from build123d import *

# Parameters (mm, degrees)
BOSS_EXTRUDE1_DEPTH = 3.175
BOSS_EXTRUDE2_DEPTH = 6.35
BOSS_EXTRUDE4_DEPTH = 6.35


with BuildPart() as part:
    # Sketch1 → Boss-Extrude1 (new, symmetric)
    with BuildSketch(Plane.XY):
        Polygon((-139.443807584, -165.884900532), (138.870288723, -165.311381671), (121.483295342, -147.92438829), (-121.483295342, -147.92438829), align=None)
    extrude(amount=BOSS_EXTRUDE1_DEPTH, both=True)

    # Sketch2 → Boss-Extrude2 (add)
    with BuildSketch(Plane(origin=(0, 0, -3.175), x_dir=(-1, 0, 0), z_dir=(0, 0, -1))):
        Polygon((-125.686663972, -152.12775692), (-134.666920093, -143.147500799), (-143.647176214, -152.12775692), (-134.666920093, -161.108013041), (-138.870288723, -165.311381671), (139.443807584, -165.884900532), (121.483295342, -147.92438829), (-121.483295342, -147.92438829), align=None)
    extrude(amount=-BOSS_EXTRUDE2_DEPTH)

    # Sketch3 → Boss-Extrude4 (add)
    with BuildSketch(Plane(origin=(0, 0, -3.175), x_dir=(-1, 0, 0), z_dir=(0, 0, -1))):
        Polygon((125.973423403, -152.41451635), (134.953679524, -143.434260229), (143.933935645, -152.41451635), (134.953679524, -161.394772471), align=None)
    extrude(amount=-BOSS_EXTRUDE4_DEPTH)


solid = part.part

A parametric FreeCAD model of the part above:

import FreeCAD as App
import Part
import Sketcher

V = App.Vector
Q = App.Units.Quantity


def add_polygon(sketch, points):
    """Adds a closed chain of lines whose ends are joined by coincident constraints."""
    first, n = sketch.GeometryCount, len(points)
    for a, b in zip(points, points[1:] + points[:1]):
        sketch.addGeometry(Part.LineSegment(App.Vector(*a, 0), App.Vector(*b, 0)), False)
    for i in range(n):
        sketch.addConstraint(Sketcher.Constraint("Coincident", first + i, 2, first + (i + 1) % n, 1))

doc = App.newDocument("Part")
body = doc.addObject("PartDesign::Body", "Body")

# Sketch on XY plane
sketch1 = body.newObject("Sketcher::SketchObject", "Sketch")
sketch1.AttachmentSupport = (doc.getObject("XY_Plane"), [""])
sketch1.MapMode = "FlatFace"
add_polygon(sketch1, [(-139, -166), (139, -165), (121, -148), (-121, -148)])  # lines 0-3
sketch1.addConstraint([
    Sketcher.Constraint("Horizontal", 2),
    Sketcher.Constraint("Perpendicular", 1, 3),
    Sketcher.Constraint("Distance", 3, Q("1 in")),
    Sketcher.Constraint("Angle", 1, Q("135 deg")),
    Sketcher.Constraint("DistanceX", 2, 2, 2, 1, Q("242.966591 mm")),
    Sketcher.Constraint("DistanceY", 3, 2, -1, 1, Q("165.884901 mm")),
    Sketcher.Constraint("Distance", 1, Q("24.588922 mm")),
    Sketcher.Constraint("DistanceX", -1, 1, 0, 2, Q("138.870289 mm")),
])
pad1 = body.newObject("PartDesign::Pad", "Pad")
pad1.Profile = sketch1
pad1.Length = Q("0.25 in")
pad1.Midplane = True

# Sketch on XY plane
sketch2 = body.newObject("Sketcher::SketchObject", "Sketch001")
sketch2.AttachmentSupport = (doc.getObject("XY_Plane"), [""])
sketch2.MapMode = "FlatFace"
sketch2.AttachmentOffset = App.Placement(V(0, 0, -0.125 * 25.4), App.Rotation())
add_polygon(sketch2, [(126, -152), (135, -143), (144, -152), (135, -161), (139, -165), (-139, -166), (-121, -148), (121, -148)])  # lines 0-7
sketch2.addConstraint([
    Sketcher.Constraint("Horizontal", 6),
    Sketcher.Constraint("Perpendicular", 0, 1),
    Sketcher.Constraint("Perpendicular", 1, 2),
    Sketcher.Constraint("Perpendicular", 2, 3),
    Sketcher.Constraint("Perpendicular", 3, 5),
    Sketcher.Constraint("Perpendicular", 5, 7),
    Sketcher.Constraint("Horizontal", 1, 2, 7, 2),
    Sketcher.Constraint("Vertical", 0, 2, 2, 2),
    Sketcher.Constraint("Equal", 0, 1),
    Sketcher.Constraint("Equal", 3, 7),
    Sketcher.Constraint("Distance", 5, Q("1 in")),
    Sketcher.Constraint("Distance", 0, Q("0.5 in")),
    Sketcher.Constraint("DistanceX", 6, 1, 6, 2, Q("242.966591 mm")),
    Sketcher.Constraint("DistanceY", 0, 2, -1, 1, Q("143.147501 mm")),
    Sketcher.Constraint("DistanceY", 4, 2, -1, 1, Q("165.884901 mm")),
    Sketcher.Constraint("DistanceX", -1, 1, 0, 2, Q("134.66692 mm")),
])
pad2 = body.newObject("PartDesign::Pad", "Pad001")
pad2.Profile = sketch2
pad2.Length = Q("0.25 in")

# Sketch on XY plane
sketch3 = body.newObject("Sketcher::SketchObject", "Sketch002")
sketch3.AttachmentSupport = (doc.getObject("XY_Plane"), [""])
sketch3.MapMode = "FlatFace"
sketch3.AttachmentOffset = App.Placement(V(0, 0, -0.125 * 25.4), App.Rotation())
add_polygon(sketch3, [(-135, -143), (-126, -152), (-135, -161), (-144, -152)])  # lines 0-3
sketch3.addConstraint([
    Sketcher.Constraint("Perpendicular", 0, 1),
    Sketcher.Constraint("Perpendicular", 1, 2),
    Sketcher.Constraint("Perpendicular", 2, 3),
    Sketcher.Constraint("Horizontal", 0, 2, 2, 2),
    Sketcher.Constraint("Vertical", 1, 2, 3, 2),
    Sketcher.Constraint("Distance", 0, Q("0.5 in")),
    Sketcher.Constraint("DistanceX", 1, 2, -1, 1, Q("134.95368 mm")),
    Sketcher.Constraint("DistanceY", 3, 2, -1, 1, Q("143.43426 mm")),
])
pad3 = body.newObject("PartDesign::Pad", "Pad002")
pad3.Profile = sketch3
pad3.Length = Q("0.25 in")

doc.recompute()
